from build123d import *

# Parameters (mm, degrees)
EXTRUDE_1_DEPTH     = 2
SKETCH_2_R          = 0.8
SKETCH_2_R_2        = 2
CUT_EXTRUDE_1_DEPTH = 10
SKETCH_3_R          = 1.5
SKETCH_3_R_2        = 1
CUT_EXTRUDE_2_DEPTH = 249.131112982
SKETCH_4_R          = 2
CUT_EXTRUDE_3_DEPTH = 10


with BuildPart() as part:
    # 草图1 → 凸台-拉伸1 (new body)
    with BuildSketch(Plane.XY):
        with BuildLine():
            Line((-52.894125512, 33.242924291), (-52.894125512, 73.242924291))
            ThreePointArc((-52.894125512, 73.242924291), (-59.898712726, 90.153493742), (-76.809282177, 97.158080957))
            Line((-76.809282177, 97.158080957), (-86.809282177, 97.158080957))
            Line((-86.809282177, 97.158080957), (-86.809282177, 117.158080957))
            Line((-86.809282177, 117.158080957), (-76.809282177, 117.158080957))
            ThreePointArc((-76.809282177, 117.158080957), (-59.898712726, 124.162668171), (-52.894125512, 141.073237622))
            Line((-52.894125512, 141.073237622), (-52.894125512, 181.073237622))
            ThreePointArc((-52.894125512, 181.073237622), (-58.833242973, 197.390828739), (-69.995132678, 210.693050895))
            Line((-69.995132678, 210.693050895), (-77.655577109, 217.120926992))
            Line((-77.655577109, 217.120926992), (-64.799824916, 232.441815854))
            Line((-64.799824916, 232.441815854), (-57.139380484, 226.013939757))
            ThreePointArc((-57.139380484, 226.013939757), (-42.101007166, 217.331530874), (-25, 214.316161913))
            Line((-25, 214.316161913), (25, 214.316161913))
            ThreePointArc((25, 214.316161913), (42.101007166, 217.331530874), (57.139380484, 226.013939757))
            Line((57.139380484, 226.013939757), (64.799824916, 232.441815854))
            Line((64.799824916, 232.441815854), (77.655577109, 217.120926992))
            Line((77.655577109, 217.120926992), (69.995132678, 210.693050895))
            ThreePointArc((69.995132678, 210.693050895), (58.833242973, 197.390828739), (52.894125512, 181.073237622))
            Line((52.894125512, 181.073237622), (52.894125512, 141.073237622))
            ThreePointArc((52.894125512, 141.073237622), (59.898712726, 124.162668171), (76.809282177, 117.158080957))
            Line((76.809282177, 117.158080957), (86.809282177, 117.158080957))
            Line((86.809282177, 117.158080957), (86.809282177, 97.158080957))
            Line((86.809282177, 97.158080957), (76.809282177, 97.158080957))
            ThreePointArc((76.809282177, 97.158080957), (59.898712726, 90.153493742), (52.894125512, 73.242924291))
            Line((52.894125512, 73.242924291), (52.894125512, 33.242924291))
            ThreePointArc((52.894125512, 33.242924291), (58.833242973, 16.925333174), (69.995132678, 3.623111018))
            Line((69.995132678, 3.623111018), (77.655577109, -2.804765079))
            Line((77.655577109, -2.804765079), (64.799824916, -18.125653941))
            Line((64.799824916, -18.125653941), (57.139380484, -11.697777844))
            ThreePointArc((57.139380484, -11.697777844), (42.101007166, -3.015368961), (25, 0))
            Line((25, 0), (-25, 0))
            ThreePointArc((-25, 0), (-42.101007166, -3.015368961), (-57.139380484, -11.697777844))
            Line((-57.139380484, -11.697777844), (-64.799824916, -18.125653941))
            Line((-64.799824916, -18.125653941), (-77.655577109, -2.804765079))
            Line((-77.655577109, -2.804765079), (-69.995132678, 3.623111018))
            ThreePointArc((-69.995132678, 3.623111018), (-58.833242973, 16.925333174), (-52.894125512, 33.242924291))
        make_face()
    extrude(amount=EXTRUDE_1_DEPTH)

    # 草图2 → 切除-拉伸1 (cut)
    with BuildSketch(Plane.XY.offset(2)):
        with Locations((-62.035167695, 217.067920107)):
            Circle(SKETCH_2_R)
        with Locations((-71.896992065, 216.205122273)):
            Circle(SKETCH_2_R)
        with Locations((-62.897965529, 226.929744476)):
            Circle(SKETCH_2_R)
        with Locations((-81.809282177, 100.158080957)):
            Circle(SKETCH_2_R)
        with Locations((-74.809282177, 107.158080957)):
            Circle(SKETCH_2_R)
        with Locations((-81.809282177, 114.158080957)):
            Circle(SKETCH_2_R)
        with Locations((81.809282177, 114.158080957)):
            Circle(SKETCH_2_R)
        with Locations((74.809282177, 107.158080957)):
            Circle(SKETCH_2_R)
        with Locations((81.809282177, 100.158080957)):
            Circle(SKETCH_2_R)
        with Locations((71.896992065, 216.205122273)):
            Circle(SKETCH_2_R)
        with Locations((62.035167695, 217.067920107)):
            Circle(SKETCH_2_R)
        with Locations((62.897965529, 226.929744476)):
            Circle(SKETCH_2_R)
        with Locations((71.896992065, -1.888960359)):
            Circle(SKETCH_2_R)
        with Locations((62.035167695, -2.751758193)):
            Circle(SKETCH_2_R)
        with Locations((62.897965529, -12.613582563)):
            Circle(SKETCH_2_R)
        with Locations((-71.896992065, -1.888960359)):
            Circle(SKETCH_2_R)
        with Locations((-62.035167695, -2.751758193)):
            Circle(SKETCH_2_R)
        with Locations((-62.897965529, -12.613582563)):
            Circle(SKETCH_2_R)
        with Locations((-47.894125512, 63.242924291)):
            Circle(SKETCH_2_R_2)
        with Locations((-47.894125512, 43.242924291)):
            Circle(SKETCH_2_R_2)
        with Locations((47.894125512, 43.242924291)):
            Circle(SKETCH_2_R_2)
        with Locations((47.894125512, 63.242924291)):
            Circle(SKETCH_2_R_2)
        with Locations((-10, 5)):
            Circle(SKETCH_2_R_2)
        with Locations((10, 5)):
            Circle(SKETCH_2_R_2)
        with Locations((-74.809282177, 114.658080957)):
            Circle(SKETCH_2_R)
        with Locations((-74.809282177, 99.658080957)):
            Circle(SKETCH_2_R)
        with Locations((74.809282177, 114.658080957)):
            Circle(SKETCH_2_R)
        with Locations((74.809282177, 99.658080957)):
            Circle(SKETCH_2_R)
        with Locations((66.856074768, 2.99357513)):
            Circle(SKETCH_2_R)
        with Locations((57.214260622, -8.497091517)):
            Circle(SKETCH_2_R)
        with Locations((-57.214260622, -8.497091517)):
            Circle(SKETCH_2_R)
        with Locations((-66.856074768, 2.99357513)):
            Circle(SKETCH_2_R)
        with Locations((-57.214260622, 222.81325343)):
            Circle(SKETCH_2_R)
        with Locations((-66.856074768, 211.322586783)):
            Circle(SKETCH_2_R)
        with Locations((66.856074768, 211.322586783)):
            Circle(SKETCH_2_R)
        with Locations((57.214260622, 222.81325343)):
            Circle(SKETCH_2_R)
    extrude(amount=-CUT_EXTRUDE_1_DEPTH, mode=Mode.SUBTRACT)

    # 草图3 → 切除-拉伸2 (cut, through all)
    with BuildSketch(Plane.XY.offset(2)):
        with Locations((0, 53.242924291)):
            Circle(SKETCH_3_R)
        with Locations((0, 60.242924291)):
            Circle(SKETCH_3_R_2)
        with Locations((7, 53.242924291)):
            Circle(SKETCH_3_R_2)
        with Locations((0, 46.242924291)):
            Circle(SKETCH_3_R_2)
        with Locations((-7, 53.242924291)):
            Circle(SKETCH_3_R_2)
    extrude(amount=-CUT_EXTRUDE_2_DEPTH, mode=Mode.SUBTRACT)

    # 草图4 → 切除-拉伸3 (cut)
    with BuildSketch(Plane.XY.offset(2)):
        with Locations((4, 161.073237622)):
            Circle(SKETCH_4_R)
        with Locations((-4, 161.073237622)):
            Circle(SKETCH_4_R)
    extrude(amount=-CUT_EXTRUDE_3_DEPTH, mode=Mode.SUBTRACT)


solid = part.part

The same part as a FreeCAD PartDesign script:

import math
import FreeCAD as App
import Part
import Sketcher
from FreeCAD import Vector
Q = App.Units.Quantity

doc = App.newDocument("Part")
params = doc.addObject("Spreadsheet::Sheet", "Params")
for row, (alias, value) in enumerate([
    ("sketch1_radius", "50 mm"),
    ("sketch1_width", "50 mm"),
    ("sketch1_width2", "10 mm"),
    ("sketch1_height", "40 mm"),
    ("sketch1_height2", "20 mm"),
    ("pad1_length", "2 mm"),
    ("sketch2_diameter", "4 mm"),
    ("sketch2_diameter2", "1.6 mm"),
    ("pocket1_length", "10 mm"),
    ("sketch3_diameter", "3 mm"),
    ("sketch3_diameter2", "2 mm"),
    ("sketch4_diameter", "4 mm"),
    ("pocket3_length", "10 mm"),
], start=1):
    params.set(f"A{row}", alias)
    params.set(f"B{row}", "=" + value)
    params.setAlias(f"B{row}", alias)

body = doc.addObject("PartDesign::Body", "Body")

# Sketch on XY plane
sketch1 = body.newObject("Sketcher::SketchObject", "Sketch")
sketch1.AttachmentSupport = (doc.getObject("XY_Plane"), [""])
sketch1.MapMode = "FlatFace"
sketch1.addGeometry([
    Part.LineSegment(Vector(-53, 73, 0), Vector(-53, 33, 0)),  # 0
    Part.ArcOfCircle(Part.Circle(Vector(-102, 42, 0), Vector(0, 0, 1), 50), math.radians(-50), math.radians(-10)),  # 1
    Part.LineSegment(Vector(-70, 4, 0), Vector(-78, -3, 0)),  # 2
    Part.LineSegment(Vector(-78, -3, 0), Vector(-65, -18, 0)),  # 3
    Part.LineSegment(Vector(-65, -18, 0), Vector(-57, -12, 0)),  # 4
    Part.ArcOfCircle(Part.Circle(Vector(-25, -50, 0), Vector(0, 0, 1), 50), math.radians(90), math.radians(130)),  # 5
    Part.LineSegment(Vector(-25, 0, 0), Vector(25, 0, 0)),  # 6
    Part.ArcOfCircle(Part.Circle(Vector(25, -50, 0), Vector(0, 0, 1), 50), math.radians(50), math.radians(90)),  # 7
    Part.LineSegment(Vector(57, -12, 0), Vector(65, -18, 0)),  # 8
    Part.LineSegment(Vector(65, -18, 0), Vector(78, -3, 0)),  # 9
    Part.LineSegment(Vector(78, -3, 0), Vector(70, 4, 0)),  # 10
    Part.ArcOfCircle(Part.Circle(Vector(102, 42, 0), Vector(0, 0, 1), 50), math.radians(-170), math.radians(-130)),  # 11
    Part.LineSegment(Vector(53, 33, 0), Vector(53, 73, 0)),  # 12
    Part.ArcOfCircle(Part.Circle(Vector(77, 73, 0), Vector(0, 0, 1), 24), math.radians(90), math.radians(180)),  # 13
    Part.LineSegment(Vector(77, 97, 0), Vector(87, 97, 0)),  # 14
    Part.LineSegment(Vector(87, 97, 0), Vector(87, 117, 0)),  # 15
    Part.LineSegment(Vector(87, 117, 0), Vector(77, 117, 0)),  # 16
    Part.ArcOfCircle(Part.Circle(Vector(77, 141, 0), Vector(0, 0, 1), 24), math.radians(180), math.radians(270)),  # 17
    Part.LineSegment(Vector(53, 141, 0), Vector(53, 181, 0)),  # 18
    Part.ArcOfCircle(Part.Circle(Vector(102, 172, 0), Vector(0, 0, 1), 50), math.radians(130), math.radians(170)),  # 19
    Part.LineSegment(Vector(70, 211, 0), Vector(78, 217, 0)),  # 20
    Part.LineSegment(Vector(78, 217, 0), Vector(65, 232, 0)),  # 21
    Part.LineSegment(Vector(65, 232, 0), Vector(57, 226, 0)),  # 22
    Part.ArcOfCircle(Part.Circle(Vector(25, 264, 0), Vector(0, 0, 1), 50), math.radians(-90), math.radians(-50)),  # 23
    Part.LineSegment(Vector(25, 214, 0), Vector(-25, 214, 0)),  # 24
    Part.ArcOfCircle(Part.Circle(Vector(-25, 264, 0), Vector(0, 0, 1), 50), math.radians(-130), math.radians(-90)),  # 25
    Part.LineSegment(Vector(-57, 226, 0), Vector(-65, 232, 0)),  # 26
    Part.LineSegment(Vector(-65, 232, 0), Vector(-78, 217, 0)),  # 27
    Part.LineSegment(Vector(-78, 217, 0), Vector(-70, 211, 0)),  # 28
    Part.ArcOfCircle(Part.Circle(Vector(-102, 172, 0), Vector(0, 0, 1), 50), math.radians(10), math.radians(50)),  # 29
    Part.LineSegment(Vector(-53, 181, 0), Vector(-53, 141, 0)),  # 30
    Part.ArcOfCircle(Part.Circle(Vector(-77, 141, 0), Vector(0, 0, 1), 24), math.radians(-90), math.radians(0)),  # 31
    Part.LineSegment(Vector(-77, 117, 0), Vector(-87, 117, 0)),  # 32
    Part.LineSegment(Vector(-87, 117, 0), Vector(-87, 97, 0)),  # 33
    Part.LineSegment(Vector(-87, 97, 0), Vector(-77, 97, 0)),  # 34
    Part.ArcOfCircle(Part.Circle(Vector(-77, 73, 0), Vector(0, 0, 1), 24), math.radians(0), math.radians(90)),  # 35
], False)
sketch1.addConstraint([
    Sketcher.Constraint("Coincident", 0, 2, 1, 2),
    Sketcher.Constraint("Tangent", 1, 1, 2, 1),
    Sketcher.Constraint("Coincident", 2, 2, 3, 1),
    Sketcher.Constraint("Coincident", 3, 2, 4, 1),
    Sketcher.Constraint("Tangent", 4, 2, 5, 2),
    Sketcher.Constraint("Tangent", 5, 1, 6, 1),
    Sketcher.Constraint("Tangent", 6, 2, 7, 2),
    Sketcher.Constraint("Tangent", 7, 1, 8, 1),
    Sketcher.Constraint("Coincident", 8, 2, 9, 1),
    Sketcher.Constraint("Coincident", 9, 2, 10, 1),
    Sketcher.Constraint("Tangent", 10, 2, 11, 2),
    Sketcher.Constraint("Coincident", 11, 1, 12, 1),
    Sketcher.Constraint("Tangent", 12, 2, 13, 2),
    Sketcher.Constraint("Tangent", 13, 1, 14, 1),
    Sketcher.Constraint("Coincident", 14, 2, 15, 1),
    Sketcher.Constraint("Coincident", 15, 2, 16, 1),
    Sketcher.Constraint("Tangent", 16, 2, 17, 2),
    Sketcher.Constraint("Tangent", 17, 1, 18, 1),
    Sketcher.Constraint("Coincident", 18, 2, 19, 2),
    Sketcher.Constraint("Tangent", 19, 1, 20, 1),
    Sketcher.Constraint("Coincident", 20, 2, 21, 1),
    Sketcher.Constraint("Coincident", 21, 2, 22, 1),
    Sketcher.Constraint("Tangent", 22, 2, 23, 2),
    Sketcher.Constraint("Tangent", 23, 1, 24, 1),
    Sketcher.Constraint("Tangent", 24, 2, 25, 2),
    Sketcher.Constraint("Tangent", 25, 1, 26, 1),
    Sketcher.Constraint("Coincident", 26, 2, 27, 1),
    Sketcher.Constraint("Coincident", 27, 2, 28, 1),
    Sketcher.Constraint("Tangent", 28, 2, 29, 2),
    Sketcher.Constraint("Coincident", 29, 1, 30, 1),
    Sketcher.Constraint("Tangent", 30, 2, 31, 2),
    Sketcher.Constraint("Tangent", 31, 1, 32, 1),
    Sketcher.Constraint("Coincident", 32, 2, 33, 1),
    Sketcher.Constraint("Coincident", 33, 2, 34, 1),
    Sketcher.Constraint("Tangent", 34, 2, 35, 2),
    Sketcher.Constraint("Tangent", 35, 1, 0, 1),
    Sketcher.Constraint("Vertical", 0),
    Sketcher.Constraint("Horizontal", 6),
    Sketcher.Constraint("Vertical", 12),
    Sketcher.Constraint("Horizontal", 14),
    Sketcher.Constraint("Vertical", 15),
    Sketcher.Constraint("Horizontal", 16),
    Sketcher.Constraint("Vertical", 18),
    Sketcher.Constraint("Horizontal", 24),
    Sketcher.Constraint("Vertical", 30),
    Sketcher.Constraint("Horizontal", 32),
    Sketcher.Constraint("Vertical", 33),
    Sketcher.Constraint("Horizontal", 34),
    Sketcher.Constraint("Equal", 1, 5),
    Sketcher.Constraint("Equal", 5, 7),
    Sketcher.Constraint("Equal", 7, 11),
    Sketcher.Constraint("Equal", 13, 17),
    Sketcher.Constraint("Equal", 11, 19),
    Sketcher.Constraint("Equal", 19, 23),
    Sketcher.Constraint("Equal", 23, 25),
    Sketcher.Constraint("Equal", 25, 29),
    Sketcher.Constraint("Equal", 17, 31),
    Sketcher.Constraint("Equal", 31, 35),
    Sketcher.Constraint("Symmetric", 5, 1, 6, 2, -1, 1),
    Sketcher.Constraint("Symmetric", 1, 3, 11, 3, -2),
    Sketcher.Constraint("Symmetric", 19, 3, 29, 3, -2),
    Sketcher.Constraint("Symmetric", 17, 3, 31, 3, -2),
    Sketcher.Constraint("Symmetric", 13, 3, 35, 3, -2),
    Sketcher.Constraint("Symmetric", 3, 2, 8, 2, -2),
    Sketcher.Constraint("Symmetric", 2, 2, 9, 2, -2),
    Sketcher.Constraint("Symmetric", 22, 2, 25, 1, -2),
    Sketcher.Constraint("Symmetric", 20, 2, 27, 2, -2),
    Sketcher.Constraint("Perpendicular", 2, 3),
    Sketcher.Constraint("Perpendicular", 3, 4),
    Sketcher.Constraint("Parallel", 4, 20),
    Sketcher.Constraint("Perpendicular", 20, 21),
    Sketcher.Constraint("Perpendicular", 21, 22),
    Sketcher.Constraint("Perpendicular", 26, 27),
    Sketcher.Constraint("Vertical", 13, 3, 17, 3),
    Sketcher.Constraint("Vertical", 11, 3, 19, 3),
    Sketcher.Constraint("Vertical", 7, 3, 23, 3),
    Sketcher.Constraint("Vertical", 9, 2, 20, 2),
    Sketcher.Constraint("Vertical", 8, 2, 21, 2),
    Sketcher.Constraint("Equal", 16, 32),
    Sketcher.Constraint("Equal", 12, 18),
    Sketcher.Constraint("Equal", 2, 4),
    Sketcher.Constraint("Radius", 1, 50.0),
    Sketcher.Constraint("DistanceX", 6, 1, 6, 2, 50.0),
    Sketcher.Constraint("DistanceX", 14, 1, 14, 2, 10.0),
    Sketcher.Constraint("DistanceY", 0, 2, 0, 1, 40.0),
    Sketcher.Constraint("DistanceY", 15, 1, 15, 2, 20.0),
    Sketcher.Constraint("Angle", 2, Q("-140 deg")),
    Sketcher.Constraint("Distance", 2, 10.0),
    Sketcher.Constraint("Distance", 3, 20.0),
    Sketcher.Constraint("Radius", 13, 23.915157),
    Sketcher.Constraint("DistanceX", 3, 2, 0, 2, 11.905699),
])
sketch1.setExpression("Constraints[81]", "Params.sketch1_radius")
sketch1.setExpression("Constraints[82]", "Params.sketch1_width")
sketch1.setExpression("Constraints[83]", "Params.sketch1_width2")
sketch1.setExpression("Constraints[84]", "Params.sketch1_height")
sketch1.setExpression("Constraints[85]", "Params.sketch1_height2")
pad1 = body.newObject("PartDesign::Pad", "Pad")
pad1.Profile = sketch1
pad1.setExpression("Length", "Params.pad1_length")

# Sketch on XY plane
sketch2 = body.newObject("Sketcher::SketchObject", "Sketch001")
sketch2.AttachmentSupport = (doc.getObject("XY_Plane"), [""])
sketch2.MapMode = "FlatFace"
sketch2.AttachmentOffset = App.Placement(Vector(0, 0, 2), App.Rotation())
sketch2.addGeometry([
    Part.Circle(Vector(-62, 217.1, 0), Vector(0, 0, 1), 0.8),  # 0
    Part.Circle(Vector(-71.9, 216.2, 0), Vector(0, 0, 1), 0.8),  # 1
    Part.Circle(Vector(-62.9, 226.9, 0), Vector(0, 0, 1), 0.8),  # 2
    Part.Circle(Vector(-81.8, 100.2, 0), Vector(0, 0, 1), 0.8),  # 3
    Part.Circle(Vector(-74.8, 107.2, 0), Vector(0, 0, 1), 0.8),  # 4
    Part.Circle(Vector(-81.8, 114.2, 0), Vector(0, 0, 1), 0.8),  # 5
    Part.Circle(Vector(81.8, 114.2, 0), Vector(0, 0, 1), 0.8),  # 6
    Part.Circle(Vector(74.8, 107.2, 0), Vector(0, 0, 1), 0.8),  # 7
    Part.Circle(Vector(81.8, 100.2, 0), Vector(0, 0, 1), 0.8),  # 8
    Part.Circle(Vector(71.9, 216.2, 0), Vector(0, 0, 1), 0.8),  # 9
    Part.Circle(Vector(62, 217.1, 0), Vector(0, 0, 1), 0.8),  # 10
    Part.Circle(Vector(62.9, 226.9, 0), Vector(0, 0, 1), 0.8),  # 11
    Part.Circle(Vector(71.9, -1.9, 0), Vector(0, 0, 1), 0.8),  # 12
    Part.Circle(Vector(62, -2.8, 0), Vector(0, 0, 1), 0.8),  # 13
    Part.Circle(Vector(62.9, -12.6, 0), Vector(0, 0, 1), 0.8),  # 14
    Part.Circle(Vector(-71.9, -1.9, 0), Vector(0, 0, 1), 0.8),  # 15
    Part.Circle(Vector(-62, -2.8, 0), Vector(0, 0, 1), 0.8),  # 16
    Part.Circle(Vector(-62.9, -12.6, 0), Vector(0, 0, 1), 0.8),  # 17
    Part.Circle(Vector(-47.9, 63.2, 0), Vector(0, 0, 1), 2),  # 18
    Part.Circle(Vector(-47.9, 43.2, 0), Vector(0, 0, 1), 2),  # 19
    Part.Circle(Vector(47.9, 43.2, 0), Vector(0, 0, 1), 2),  # 20
    Part.Circle(Vector(47.9, 63.2, 0), Vector(0, 0, 1), 2),  # 21
    Part.Circle(Vector(-10, 5, 0), Vector(0, 0, 1), 2),  # 22
    Part.Circle(Vector(10, 5, 0), Vector(0, 0, 1), 2),  # 23
    Part.Circle(Vector(-74.8, 114.7, 0), Vector(0, 0, 1), 0.8),  # 24
    Part.Circle(Vector(-74.8, 99.7, 0), Vector(0, 0, 1), 0.8),  # 25
    Part.Circle(Vector(74.8, 114.7, 0), Vector(0, 0, 1), 0.8),  # 26
    Part.Circle(Vector(74.8, 99.7, 0), Vector(0, 0, 1), 0.8),  # 27
    Part.Circle(Vector(66.9, 3, 0), Vector(0, 0, 1), 0.8),  # 28
    Part.Circle(Vector(57.2, -8.5, 0), Vector(0, 0, 1), 0.8),  # 29
    Part.Circle(Vector(-57.2, -8.5, 0), Vector(0, 0, 1), 0.8),  # 30
    Part.Circle(Vector(-66.9, 3, 0), Vector(0, 0, 1), 0.8),  # 31
    Part.Circle(Vector(-57.2, 222.8, 0), Vector(0, 0, 1), 0.8),  # 32
    Part.Circle(Vector(-66.9, 211.3, 0), Vector(0, 0, 1), 0.8),  # 33
    Part.Circle(Vector(66.9, 211.3, 0), Vector(0, 0, 1), 0.8),  # 34
    Part.Circle(Vector(57.2, 222.8, 0), Vector(0, 0, 1), 0.8),  # 35
], False)
sketch2.addConstraint([
    Sketcher.Constraint("Equal", 0, 1),
    Sketcher.Constraint("Equal", 1, 2),
    Sketcher.Constraint("Equal", 2, 3),
    Sketcher.Constraint("Equal", 3, 4),
    Sketcher.Constraint("Equal", 4, 5),
    Sketcher.Constraint("Equal", 5, 6),
    Sketcher.Constraint("Equal", 6, 7),
    Sketcher.Constraint("Equal", 7, 8),
    Sketcher.Constraint("Equal", 8, 9),
    Sketcher.Constraint("Equal", 9, 10),
    Sketcher.Constraint("Equal", 10, 11),
    Sketcher.Constraint("Equal", 11, 12),
    Sketcher.Constraint("Equal", 12, 13),
    Sketcher.Constraint("Equal", 13, 14),
    Sketcher.Constraint("Equal", 14, 15),
    Sketcher.Constraint("Equal", 15, 16),
    Sketcher.Constraint("Equal", 16, 17),
    Sketcher.Constraint("Equal", 18, 19),
    Sketcher.Constraint("Equal", 19, 20),
    Sketcher.Constraint("Equal", 20, 21),
    Sketcher.Constraint("Equal", 21, 22),
    Sketcher.Constraint("Equal", 22, 23),
    Sketcher.Constraint("Equal", 17, 24),
    Sketcher.Constraint("Equal", 24, 25),
    Sketcher.Constraint("Equal", 25, 26),
    Sketcher.Constraint("Equal", 26, 27),
    Sketcher.Constraint("Equal", 27, 28),
    Sketcher.Constraint("Equal", 28, 29),
    Sketcher.Constraint("Equal", 29, 30),
    Sketcher.Constraint("Equal", 30, 31),
    Sketcher.Constraint("Equal", 31, 32),
    Sketcher.Constraint("Equal", 32, 33),
    Sketcher.Constraint("Equal", 33, 34),
    Sketcher.Constraint("Equal", 34, 35),
    Sketcher.Constraint("Symmetric", 5, 3, 6, 3, -2),
    Sketcher.Constraint("Symmetric", 4, 3, 7, 3, -2),
    Sketcher.Constraint("Symmetric", 3, 3, 8, 3, -2),
    Sketcher.Constraint("Symmetric", 1, 3, 9, 3, -2),
    Sketcher.Constraint("Symmetric", 0, 3, 10, 3, -2),
    Sketcher.Constraint("Symmetric", 2, 3, 11, 3, -2),
    Sketcher.Constraint("Symmetric", 12, 3, 15, 3, -2),
    Sketcher.Constraint("Symmetric", 13, 3, 16, 3, -2),
    Sketcher.Constraint("Symmetric", 14, 3, 17, 3, -2),
    Sketcher.Constraint("Symmetric", 19, 3, 20, 3, -2),
    Sketcher.Constraint("Symmetric", 18, 3, 21, 3, -2),
    Sketcher.Constraint("Symmetric", 22, 3, 23, 3, -2),
    Sketcher.Constraint("Symmetric", 24, 3, 26, 3, -2),
    Sketcher.Constraint("Symmetric", 25, 3, 27, 3, -2),
    Sketcher.Constraint("Symmetric", 29, 3, 30, 3, -2),
    Sketcher.Constraint("Symmetric", 28, 3, 31, 3, -2),
    Sketcher.Constraint("Symmetric", 33, 3, 34, 3, -2),
    Sketcher.Constraint("Symmetric", 32, 3, 35, 3, -2),
    Sketcher.Constraint("Vertical", 3, 3, 5, 3),
    Sketcher.Constraint("Vertical", 9, 3, 12, 3),
    Sketcher.Constraint("Vertical", 10, 3, 13, 3),
    Sketcher.Constraint("Vertical", 11, 3, 14, 3),
    Sketcher.Constraint("Vertical", 18, 3, 19, 3),
    Sketcher.Constraint("Vertical", 4, 3, 24, 3),
    Sketcher.Constraint("Vertical", 24, 3, 25, 3),
    Sketcher.Constraint("Vertical", 30, 3, 32, 3),
    Sketcher.Constraint("Vertical", 31, 3, 33, 3),
    Sketcher.Constraint("Diameter", 18, 4.0),
    Sketcher.Constraint("Diameter", 0, 1.6),
    Sketcher.Constraint("DistanceX", 22, 3, -1, 1, 10.0),
    Sketcher.Constraint("DistanceY", -1, 1, 22, 3, 5.0),
    Sketcher.Constraint("DistanceX", 3, 3, 4, 3, 7.0),
    Sketcher.Constraint("DistanceY", 3, 3, 4, 3, 7.0),
    Sketcher.Constraint("DistanceY", 4, 3, 5, 3, 7.0),
    Sketcher.Constraint("DistanceY", 19, 3, 18, 3, 20.0),
    Sketcher.Constraint("DistanceY", 25, 3, 24, 3, 15.0),
    Sketcher.Constraint("DistanceY", 5, 3, 24, 3, 0.5),
    Sketcher.Constraint("DistanceY", -1, 1, 0, 3, 217.06792),
    Sketcher.Constraint("DistanceY", -1, 1, 3, 3, 100.158081),
    Sketcher.Constraint("DistanceY", 12, 3, -1, 1, 1.88896),
    Sketcher.Constraint("DistanceY", 13, 3, -1, 1, 2.751758),
    Sketcher.Constraint("DistanceX", -1, 1, 29, 3, 57.214261),
    Sketcher.Constraint("DistanceY", 29, 3, -1, 1, 8.497092),
    Sketcher.Constraint("DistanceX", 3, 3, 1, 3, 9.91229),
    Sketcher.Constraint("DistanceY", 3, 3, 1, 3, 116.047041),
    Sketcher.Constraint("DistanceX", 0, 3, 6, 3, 143.84445),
    Sketcher.Constraint("DistanceX", 17, 3, 19, 3, 15.00384),
    Sketcher.Constraint("DistanceX", 14, 3, 28, 3, 3.958109),
    Sketcher.Constraint("DistanceY", 28, 3, 20, 3, 40.249349),
    Sketcher.Constraint("DistanceY", 14, 3, 29, 3, 4.116491),
    Sketcher.Constraint("DistanceX", 29, 3, 12, 3, 14.682731),
    Sketcher.Constraint("DistanceY", 32, 3, 2, 3, 4.116491),
    Sketcher.Constraint("DistanceY", 1, 3, 32, 3, 6.608131),
    Sketcher.Constraint("DistanceX", 2, 3, -1, 1, 62.897966),
    Sketcher.Constraint("DistanceY", -1, 1, 18, 3, 63.242924),
    Sketcher.Constraint("DistanceY", -1, 1, 33, 3, 211.322587),
])
sketch2.setExpression("Constraints[61]", "Params.sketch2_diameter")
sketch2.setExpression("Constraints[62]", "Params.sketch2_diameter2")
pocket1 = body.newObject("PartDesign::Pocket", "Pocket")
pocket1.Profile = sketch2
pocket1.setExpression("Length", "Params.pocket1_length")

# Sketch on XY plane
sketch3 = body.newObject("Sketcher::SketchObject", "Sketch002")
sketch3.AttachmentSupport = (doc.getObject("XY_Plane"), [""])
sketch3.MapMode = "FlatFace"
sketch3.AttachmentOffset = App.Placement(Vector(0, 0, 2), App.Rotation())
sketch3.addGeometry([
    Part.Circle(Vector(0, 53.2, 0), Vector(0, 0, 1), 1.5),  # 0
    Part.Circle(Vector(0, 60.2, 0), Vector(0, 0, 1), 1),  # 1
    Part.Circle(Vector(7, 53.2, 0), Vector(0, 0, 1), 1),  # 2
    Part.Circle(Vector(0, 46.2, 0), Vector(0, 0, 1), 1),  # 3
    Part.Circle(Vector(-7, 53.2, 0), Vector(0, 0, 1), 1),  # 4
], False)
sketch3.addConstraint([
    Sketcher.Constraint("Equal", 1, 2),
    Sketcher.Constraint("Equal", 2, 3),
    Sketcher.Constraint("Equal", 3, 4),
    Sketcher.Constraint("Symmetric", 2, 3, 4, 3, -2),
    Sketcher.Constraint("PointOnObject", 0, 3, -2),
    Sketcher.Constraint("PointOnObject", 1, 3, -2),
    Sketcher.Constraint("PointOnObject", 3, 3, -2),
    Sketcher.Constraint("Horizontal", 0, 3, 2, 3),
    Sketcher.Constraint("Diameter", 0, 3.0),
    Sketcher.Constraint("Diameter", 1, 2.0),
    Sketcher.Constraint("DistanceX", -1, 1, 2, 3, 7.0),
    Sketcher.Constraint("DistanceY", 0, 3, 1, 3, 7.0),
    Sketcher.Constraint("DistanceY", 3, 3, 0, 3, 7.0),
    Sketcher.Constraint("DistanceY", -1, 1, 0, 3, 53.242924),
])
sketch3.setExpression("Constraints[8]", "Params.sketch3_diameter")
sketch3.setExpression("Constraints[9]", "Params.sketch3_diameter2")
pocket2 = body.newObject("PartDesign::Pocket", "Pocket001")
pocket2.Profile = sketch3
pocket2.Type = "ThroughAll"

# Sketch on XY plane
sketch4 = body.newObject("Sketcher::SketchObject", "Sketch003")
sketch4.AttachmentSupport = (doc.getObject("XY_Plane"), [""])
sketch4.MapMode = "FlatFace"
sketch4.AttachmentOffset = App.Placement(Vector(0, 0, 2), App.Rotation())
sketch4.addGeometry([
    Part.Circle(Vector(4, 161.1, 0), Vector(0, 0, 1), 2),
    Part.Circle(Vector(-4, 161.1, 0), Vector(0, 0, 1), 2),
], False)
sketch4.addConstraint([
    Sketcher.Constraint("Equal", 0, 1),
    Sketcher.Constraint("Symmetric", 0, 3, 1, 3, -2),
    Sketcher.Constraint("Diameter", 0, 4.0),
    Sketcher.Constraint("DistanceX", -1, 1, 0, 3, 4.0),
    Sketcher.Constraint("DistanceY", -1, 1, 0, 3, 161.073238),
])
sketch4.setExpression("Constraints[2]", "Params.sketch4_diameter")
pocket3 = body.newObject("PartDesign::Pocket", "Pocket002")
pocket3.Profile = sketch4
pocket3.setExpression("Length", "Params.pocket3_length")

doc.recompute()
